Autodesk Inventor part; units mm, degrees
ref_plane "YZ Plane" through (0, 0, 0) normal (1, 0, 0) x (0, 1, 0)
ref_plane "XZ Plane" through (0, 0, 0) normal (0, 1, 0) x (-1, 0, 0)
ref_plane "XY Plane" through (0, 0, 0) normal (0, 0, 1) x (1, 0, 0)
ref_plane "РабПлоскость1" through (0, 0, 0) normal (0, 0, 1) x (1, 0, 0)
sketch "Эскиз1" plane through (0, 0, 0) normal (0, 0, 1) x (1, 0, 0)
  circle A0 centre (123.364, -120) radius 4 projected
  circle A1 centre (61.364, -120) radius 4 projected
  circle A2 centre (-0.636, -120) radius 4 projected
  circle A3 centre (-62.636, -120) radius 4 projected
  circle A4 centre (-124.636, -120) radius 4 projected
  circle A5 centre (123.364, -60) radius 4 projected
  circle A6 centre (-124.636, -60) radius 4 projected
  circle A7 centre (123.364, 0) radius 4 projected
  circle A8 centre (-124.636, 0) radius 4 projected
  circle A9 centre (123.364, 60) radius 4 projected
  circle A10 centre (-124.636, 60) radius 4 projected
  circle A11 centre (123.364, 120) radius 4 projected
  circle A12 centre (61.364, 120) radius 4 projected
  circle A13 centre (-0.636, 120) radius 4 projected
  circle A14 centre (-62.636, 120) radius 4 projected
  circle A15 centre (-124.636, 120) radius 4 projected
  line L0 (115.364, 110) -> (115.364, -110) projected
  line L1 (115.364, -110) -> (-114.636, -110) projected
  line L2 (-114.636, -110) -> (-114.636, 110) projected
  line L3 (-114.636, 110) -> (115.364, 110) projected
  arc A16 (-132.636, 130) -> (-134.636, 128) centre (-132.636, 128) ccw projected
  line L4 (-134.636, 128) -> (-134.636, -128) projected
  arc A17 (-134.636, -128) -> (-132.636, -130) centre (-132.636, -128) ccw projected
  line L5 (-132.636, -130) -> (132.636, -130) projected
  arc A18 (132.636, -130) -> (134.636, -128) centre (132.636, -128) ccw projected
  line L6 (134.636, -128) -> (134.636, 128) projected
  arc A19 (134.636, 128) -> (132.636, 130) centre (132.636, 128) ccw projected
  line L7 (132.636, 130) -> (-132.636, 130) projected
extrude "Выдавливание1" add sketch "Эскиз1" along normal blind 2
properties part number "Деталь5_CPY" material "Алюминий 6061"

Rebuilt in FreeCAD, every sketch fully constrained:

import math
import FreeCAD as App
import Part
import Sketcher

V = App.Vector
Q = App.Units.Quantity


def add_polygon(sketch, points):
    """Adds a closed chain of lines whose ends are joined by coincident constraints."""
    first, n = sketch.GeometryCount, len(points)
    for a, b in zip(points, points[1:] + points[:1]):
        sketch.addGeometry(Part.LineSegment(App.Vector(*a, 0), App.Vector(*b, 0)), False)
    for i in range(n):
        sketch.addConstraint(Sketcher.Constraint("Coincident", first + i, 2, first + (i + 1) % n, 1))

doc = App.newDocument("Part")
body = doc.addObject("PartDesign::Body", "Body")

# Sketch on XY plane
sketch1 = body.newObject("Sketcher::SketchObject", "Sketch")
sketch1.AttachmentSupport = (doc.getObject("XY_Plane"), [""])
sketch1.MapMode = "FlatFace"
sketch1.addGeometry(Part.LineSegment(V(132.6, 130, 0), V(-132.6, 130, 0)), False)  # 0
sketch1.addGeometry(Part.ArcOfCircle(Part.Circle(V(-132.6, 128, 0), V(0, 0, 1), 2), math.radians(90), math.radians(180)), False)  # 1
sketch1.addGeometry(Part.LineSegment(V(-134.6, 128, 0), V(-134.6, -128, 0)), False)  # 2
sketch1.addGeometry(Part.ArcOfCircle(Part.Circle(V(-132.6, -128, 0), V(0, 0, 1), 2), math.radians(180), math.radians(270)), False)  # 3
sketch1.addGeometry(Part.LineSegment(V(-132.6, -130, 0), V(132.6, -130, 0)), False)  # 4
sketch1.addGeometry(Part.ArcOfCircle(Part.Circle(V(132.6, -128, 0), V(0, 0, 1), 2), math.radians(-90), math.radians(0)), False)  # 5
sketch1.addGeometry(Part.LineSegment(V(134.6, -128, 0), V(134.6, 128, 0)), False)  # 6
sketch1.addGeometry(Part.ArcOfCircle(Part.Circle(V(132.6, 128, 0), V(0, 0, 1), 2), math.radians(0), math.radians(90)), False)  # 7
sketch1.addGeometry(Part.Circle(V(-124.6, -120, 0), V(0, 0, 1), 4), False)  # 8
sketch1.addGeometry(Part.Circle(V(-62.6, -120, 0), V(0, 0, 1), 4), False)  # 9
sketch1.addGeometry(Part.Circle(V(-0.6, -120, 0), V(0, 0, 1), 4), False)  # 10
sketch1.addGeometry(Part.Circle(V(-124.6, -60, 0), V(0, 0, 1), 4), False)  # 11
sketch1.addGeometry(Part.Circle(V(61.4, -120, 0), V(0, 0, 1), 4), False)  # 12
sketch1.addGeometry(Part.Circle(V(123.4, -120, 0), V(0, 0, 1), 4), False)  # 13
sketch1.addGeometry(Part.Circle(V(123.4, -60, 0), V(0, 0, 1), 4), False)  # 14
sketch1.addGeometry(Part.Circle(V(-124.6, 0, 0), V(0, 0, 1), 4), False)  # 15
sketch1.addGeometry(Part.Circle(V(-124.6, 60, 0), V(0, 0, 1), 4), False)  # 16
sketch1.addGeometry(Part.Circle(V(-124.6, 120, 0), V(0, 0, 1), 4), False)  # 17
sketch1.addGeometry(Part.Circle(V(-62.6, 120, 0), V(0, 0, 1), 4), False)  # 18
sketch1.addGeometry(Part.Circle(V(-0.6, 120, 0), V(0, 0, 1), 4), False)  # 19
add_polygon(sketch1, [(-114.6, 110), (115.4, 110), (115.4, -110), (-114.6, -110)])  # lines 20-23
sketch1.addGeometry(Part.Circle(V(123.4, 0, 0), V(0, 0, 1), 4), False)  # 24
sketch1.addGeometry(Part.Circle(V(123.4, 60, 0), V(0, 0, 1), 4), False)  # 25
sketch1.addGeometry(Part.Circle(V(61.4, 120, 0), V(0, 0, 1), 4), False)  # 26
sketch1.addGeometry(Part.Circle(V(123.4, 120, 0), V(0, 0, 1), 4), False)  # 27
sketch1.addConstraint(Sketcher.Constraint("Tangent", 0, 2, 1, 1))
sketch1.addConstraint(Sketcher.Constraint("Tangent", 1, 2, 2, 1))
sketch1.addConstraint(Sketcher.Constraint("Tangent", 2, 2, 3, 1))
sketch1.addConstraint(Sketcher.Constraint("Tangent", 3, 2, 4, 1))
sketch1.addConstraint(Sketcher.Constraint("Tangent", 4, 2, 5, 1))
sketch1.addConstraint(Sketcher.Constraint("Tangent", 5, 2, 6, 1))
sketch1.addConstraint(Sketcher.Constraint("Tangent", 6, 2, 7, 1))
sketch1.addConstraint(Sketcher.Constraint("Tangent", 7, 2, 0, 1))
sketch1.addConstraint(Sketcher.Constraint("Horizontal", 0))
sketch1.addConstraint(Sketcher.Constraint("Vertical", 2))
sketch1.addConstraint(Sketcher.Constraint("Horizontal", 4))
sketch1.addConstraint(Sketcher.Constraint("Vertical", 6))
sketch1.addConstraint(Sketcher.Constraint("Horizontal", 20))
sketch1.addConstraint(Sketcher.Constraint("Vertical", 21))
sketch1.addConstraint(Sketcher.Constraint("Horizontal", 22))
sketch1.addConstraint(Sketcher.Constraint("Vertical", 23))
sketch1.addConstraint(Sketcher.Constraint("Equal", 1, 3))
sketch1.addConstraint(Sketcher.Constraint("Equal", 3, 5))
sketch1.addConstraint(Sketcher.Constraint("Equal", 5, 7))
sketch1.addConstraint(Sketcher.Constraint("Equal", 8, 9))
sketch1.addConstraint(Sketcher.Constraint("Equal", 9, 10))
sketch1.addConstraint(Sketcher.Constraint("Equal", 10, 11))
sketch1.addConstraint(Sketcher.Constraint("Equal", 11, 12))
sketch1.addConstraint(Sketcher.Constraint("Equal", 12, 13))
sketch1.addConstraint(Sketcher.Constraint("Equal", 13, 14))
sketch1.addConstraint(Sketcher.Constraint("Equal", 14, 15))
sketch1.addConstraint(Sketcher.Constraint("Equal", 15, 16))
sketch1.addConstraint(Sketcher.Constraint("Equal", 16, 17))
sketch1.addConstraint(Sketcher.Constraint("Equal", 17, 18))
sketch1.addConstraint(Sketcher.Constraint("Equal", 18, 19))
sketch1.addConstraint(Sketcher.Constraint("Equal", 19, 24))
sketch1.addConstraint(Sketcher.Constraint("Equal", 24, 25))
sketch1.addConstraint(Sketcher.Constraint("Equal", 25, 26))
sketch1.addConstraint(Sketcher.Constraint("Equal", 26, 27))
sketch1.addConstraint(Sketcher.Constraint("Symmetric", 1, 3, 5, 3, -1, 1))
sketch1.addConstraint(Sketcher.Constraint("Symmetric", 11, 3, 16, 3, -1))
sketch1.addConstraint(Sketcher.Constraint("Symmetric", 8, 3, 17, 3, -1))
sketch1.addConstraint(Sketcher.Constraint("Symmetric", 9, 3, 18, 3, -1))
sketch1.addConstraint(Sketcher.Constraint("Symmetric", 10, 3, 19, 3, -1))
sketch1.addConstraint(Sketcher.Constraint("Symmetric", 14, 3, 25, 3, -1))
sketch1.addConstraint(Sketcher.Constraint("Symmetric", 12, 3, 26, 3, -1))
sketch1.addConstraint(Sketcher.Constraint("Symmetric", 13, 3, 27, 3, -1))
sketch1.addConstraint(Sketcher.Constraint("PointOnObject", 15, 3, -1))
sketch1.addConstraint(Sketcher.Constraint("PointOnObject", 24, 3, -1))
sketch1.addConstraint(Sketcher.Constraint("Horizontal", 8, 3, 9, 3))
sketch1.addConstraint(Sketcher.Constraint("Horizontal", 9, 3, 10, 3))
sketch1.addConstraint(Sketcher.Constraint("Horizontal", 10, 3, 12, 3))
sketch1.addConstraint(Sketcher.Constraint("Horizontal", 12, 3, 13, 3))
sketch1.addConstraint(Sketcher.Constraint("Horizontal", 11, 3, 14, 3))
sketch1.addConstraint(Sketcher.Constraint("Vertical", 8, 3, 11, 3))
sketch1.addConstraint(Sketcher.Constraint("Vertical", 13, 3, 14, 3))
sketch1.addConstraint(Sketcher.Constraint("Vertical", 11, 3, 15, 3))
sketch1.addConstraint(Sketcher.Constraint("Vertical", 14, 3, 24, 3))
sketch1.addConstraint(Sketcher.Constraint("Diameter", 8, Q("8 mm")))
sketch1.addConstraint(Sketcher.Constraint("Radius", 1, Q("2 mm")))
sketch1.addConstraint(Sketcher.Constraint("DistanceX", 20, 1, 20, 2, Q("230 mm")))
sketch1.addConstraint(Sketcher.Constraint("DistanceY", 2, 2, 2, 1, Q("256 mm")))
sketch1.addConstraint(Sketcher.Constraint("DistanceY", 21, 2, 21, 1, Q("220 mm")))
sketch1.addConstraint(Sketcher.Constraint("DistanceY", 8, 3, -1, 1, Q("120 mm")))
sketch1.addConstraint(Sketcher.Constraint("DistanceY", 11, 3, -1, 1, Q("60 mm")))
sketch1.addConstraint(Sketcher.Constraint("DistanceY", -1, 1, 20, 2, Q("110 mm")))
sketch1.addConstraint(Sketcher.Constraint("DistanceX", 3, 3, 8, 3, Q("8 mm")))
sketch1.addConstraint(Sketcher.Constraint("DistanceX", 8, 3, 9, 3, Q("62 mm")))
sketch1.addConstraint(Sketcher.Constraint("DistanceX", 9, 3, 10, 3, Q("62 mm")))
sketch1.addConstraint(Sketcher.Constraint("DistanceX", 10, 3, 12, 3, Q("62 mm")))
sketch1.addConstraint(Sketcher.Constraint("DistanceX", 12, 3, 13, 3, Q("62 mm")))
sketch1.addConstraint(Sketcher.Constraint("DistanceX", 20, 2, 27, 3, Q("8 mm")))
sketch1.addConstraint(Sketcher.Constraint("DistanceX", 0, 2, 0, 1, Q("265.272 mm")))
pad1 = body.newObject("PartDesign::Pad", "Pad")
pad1.Profile = sketch1
pad1.Length = 2

doc.recompute()
